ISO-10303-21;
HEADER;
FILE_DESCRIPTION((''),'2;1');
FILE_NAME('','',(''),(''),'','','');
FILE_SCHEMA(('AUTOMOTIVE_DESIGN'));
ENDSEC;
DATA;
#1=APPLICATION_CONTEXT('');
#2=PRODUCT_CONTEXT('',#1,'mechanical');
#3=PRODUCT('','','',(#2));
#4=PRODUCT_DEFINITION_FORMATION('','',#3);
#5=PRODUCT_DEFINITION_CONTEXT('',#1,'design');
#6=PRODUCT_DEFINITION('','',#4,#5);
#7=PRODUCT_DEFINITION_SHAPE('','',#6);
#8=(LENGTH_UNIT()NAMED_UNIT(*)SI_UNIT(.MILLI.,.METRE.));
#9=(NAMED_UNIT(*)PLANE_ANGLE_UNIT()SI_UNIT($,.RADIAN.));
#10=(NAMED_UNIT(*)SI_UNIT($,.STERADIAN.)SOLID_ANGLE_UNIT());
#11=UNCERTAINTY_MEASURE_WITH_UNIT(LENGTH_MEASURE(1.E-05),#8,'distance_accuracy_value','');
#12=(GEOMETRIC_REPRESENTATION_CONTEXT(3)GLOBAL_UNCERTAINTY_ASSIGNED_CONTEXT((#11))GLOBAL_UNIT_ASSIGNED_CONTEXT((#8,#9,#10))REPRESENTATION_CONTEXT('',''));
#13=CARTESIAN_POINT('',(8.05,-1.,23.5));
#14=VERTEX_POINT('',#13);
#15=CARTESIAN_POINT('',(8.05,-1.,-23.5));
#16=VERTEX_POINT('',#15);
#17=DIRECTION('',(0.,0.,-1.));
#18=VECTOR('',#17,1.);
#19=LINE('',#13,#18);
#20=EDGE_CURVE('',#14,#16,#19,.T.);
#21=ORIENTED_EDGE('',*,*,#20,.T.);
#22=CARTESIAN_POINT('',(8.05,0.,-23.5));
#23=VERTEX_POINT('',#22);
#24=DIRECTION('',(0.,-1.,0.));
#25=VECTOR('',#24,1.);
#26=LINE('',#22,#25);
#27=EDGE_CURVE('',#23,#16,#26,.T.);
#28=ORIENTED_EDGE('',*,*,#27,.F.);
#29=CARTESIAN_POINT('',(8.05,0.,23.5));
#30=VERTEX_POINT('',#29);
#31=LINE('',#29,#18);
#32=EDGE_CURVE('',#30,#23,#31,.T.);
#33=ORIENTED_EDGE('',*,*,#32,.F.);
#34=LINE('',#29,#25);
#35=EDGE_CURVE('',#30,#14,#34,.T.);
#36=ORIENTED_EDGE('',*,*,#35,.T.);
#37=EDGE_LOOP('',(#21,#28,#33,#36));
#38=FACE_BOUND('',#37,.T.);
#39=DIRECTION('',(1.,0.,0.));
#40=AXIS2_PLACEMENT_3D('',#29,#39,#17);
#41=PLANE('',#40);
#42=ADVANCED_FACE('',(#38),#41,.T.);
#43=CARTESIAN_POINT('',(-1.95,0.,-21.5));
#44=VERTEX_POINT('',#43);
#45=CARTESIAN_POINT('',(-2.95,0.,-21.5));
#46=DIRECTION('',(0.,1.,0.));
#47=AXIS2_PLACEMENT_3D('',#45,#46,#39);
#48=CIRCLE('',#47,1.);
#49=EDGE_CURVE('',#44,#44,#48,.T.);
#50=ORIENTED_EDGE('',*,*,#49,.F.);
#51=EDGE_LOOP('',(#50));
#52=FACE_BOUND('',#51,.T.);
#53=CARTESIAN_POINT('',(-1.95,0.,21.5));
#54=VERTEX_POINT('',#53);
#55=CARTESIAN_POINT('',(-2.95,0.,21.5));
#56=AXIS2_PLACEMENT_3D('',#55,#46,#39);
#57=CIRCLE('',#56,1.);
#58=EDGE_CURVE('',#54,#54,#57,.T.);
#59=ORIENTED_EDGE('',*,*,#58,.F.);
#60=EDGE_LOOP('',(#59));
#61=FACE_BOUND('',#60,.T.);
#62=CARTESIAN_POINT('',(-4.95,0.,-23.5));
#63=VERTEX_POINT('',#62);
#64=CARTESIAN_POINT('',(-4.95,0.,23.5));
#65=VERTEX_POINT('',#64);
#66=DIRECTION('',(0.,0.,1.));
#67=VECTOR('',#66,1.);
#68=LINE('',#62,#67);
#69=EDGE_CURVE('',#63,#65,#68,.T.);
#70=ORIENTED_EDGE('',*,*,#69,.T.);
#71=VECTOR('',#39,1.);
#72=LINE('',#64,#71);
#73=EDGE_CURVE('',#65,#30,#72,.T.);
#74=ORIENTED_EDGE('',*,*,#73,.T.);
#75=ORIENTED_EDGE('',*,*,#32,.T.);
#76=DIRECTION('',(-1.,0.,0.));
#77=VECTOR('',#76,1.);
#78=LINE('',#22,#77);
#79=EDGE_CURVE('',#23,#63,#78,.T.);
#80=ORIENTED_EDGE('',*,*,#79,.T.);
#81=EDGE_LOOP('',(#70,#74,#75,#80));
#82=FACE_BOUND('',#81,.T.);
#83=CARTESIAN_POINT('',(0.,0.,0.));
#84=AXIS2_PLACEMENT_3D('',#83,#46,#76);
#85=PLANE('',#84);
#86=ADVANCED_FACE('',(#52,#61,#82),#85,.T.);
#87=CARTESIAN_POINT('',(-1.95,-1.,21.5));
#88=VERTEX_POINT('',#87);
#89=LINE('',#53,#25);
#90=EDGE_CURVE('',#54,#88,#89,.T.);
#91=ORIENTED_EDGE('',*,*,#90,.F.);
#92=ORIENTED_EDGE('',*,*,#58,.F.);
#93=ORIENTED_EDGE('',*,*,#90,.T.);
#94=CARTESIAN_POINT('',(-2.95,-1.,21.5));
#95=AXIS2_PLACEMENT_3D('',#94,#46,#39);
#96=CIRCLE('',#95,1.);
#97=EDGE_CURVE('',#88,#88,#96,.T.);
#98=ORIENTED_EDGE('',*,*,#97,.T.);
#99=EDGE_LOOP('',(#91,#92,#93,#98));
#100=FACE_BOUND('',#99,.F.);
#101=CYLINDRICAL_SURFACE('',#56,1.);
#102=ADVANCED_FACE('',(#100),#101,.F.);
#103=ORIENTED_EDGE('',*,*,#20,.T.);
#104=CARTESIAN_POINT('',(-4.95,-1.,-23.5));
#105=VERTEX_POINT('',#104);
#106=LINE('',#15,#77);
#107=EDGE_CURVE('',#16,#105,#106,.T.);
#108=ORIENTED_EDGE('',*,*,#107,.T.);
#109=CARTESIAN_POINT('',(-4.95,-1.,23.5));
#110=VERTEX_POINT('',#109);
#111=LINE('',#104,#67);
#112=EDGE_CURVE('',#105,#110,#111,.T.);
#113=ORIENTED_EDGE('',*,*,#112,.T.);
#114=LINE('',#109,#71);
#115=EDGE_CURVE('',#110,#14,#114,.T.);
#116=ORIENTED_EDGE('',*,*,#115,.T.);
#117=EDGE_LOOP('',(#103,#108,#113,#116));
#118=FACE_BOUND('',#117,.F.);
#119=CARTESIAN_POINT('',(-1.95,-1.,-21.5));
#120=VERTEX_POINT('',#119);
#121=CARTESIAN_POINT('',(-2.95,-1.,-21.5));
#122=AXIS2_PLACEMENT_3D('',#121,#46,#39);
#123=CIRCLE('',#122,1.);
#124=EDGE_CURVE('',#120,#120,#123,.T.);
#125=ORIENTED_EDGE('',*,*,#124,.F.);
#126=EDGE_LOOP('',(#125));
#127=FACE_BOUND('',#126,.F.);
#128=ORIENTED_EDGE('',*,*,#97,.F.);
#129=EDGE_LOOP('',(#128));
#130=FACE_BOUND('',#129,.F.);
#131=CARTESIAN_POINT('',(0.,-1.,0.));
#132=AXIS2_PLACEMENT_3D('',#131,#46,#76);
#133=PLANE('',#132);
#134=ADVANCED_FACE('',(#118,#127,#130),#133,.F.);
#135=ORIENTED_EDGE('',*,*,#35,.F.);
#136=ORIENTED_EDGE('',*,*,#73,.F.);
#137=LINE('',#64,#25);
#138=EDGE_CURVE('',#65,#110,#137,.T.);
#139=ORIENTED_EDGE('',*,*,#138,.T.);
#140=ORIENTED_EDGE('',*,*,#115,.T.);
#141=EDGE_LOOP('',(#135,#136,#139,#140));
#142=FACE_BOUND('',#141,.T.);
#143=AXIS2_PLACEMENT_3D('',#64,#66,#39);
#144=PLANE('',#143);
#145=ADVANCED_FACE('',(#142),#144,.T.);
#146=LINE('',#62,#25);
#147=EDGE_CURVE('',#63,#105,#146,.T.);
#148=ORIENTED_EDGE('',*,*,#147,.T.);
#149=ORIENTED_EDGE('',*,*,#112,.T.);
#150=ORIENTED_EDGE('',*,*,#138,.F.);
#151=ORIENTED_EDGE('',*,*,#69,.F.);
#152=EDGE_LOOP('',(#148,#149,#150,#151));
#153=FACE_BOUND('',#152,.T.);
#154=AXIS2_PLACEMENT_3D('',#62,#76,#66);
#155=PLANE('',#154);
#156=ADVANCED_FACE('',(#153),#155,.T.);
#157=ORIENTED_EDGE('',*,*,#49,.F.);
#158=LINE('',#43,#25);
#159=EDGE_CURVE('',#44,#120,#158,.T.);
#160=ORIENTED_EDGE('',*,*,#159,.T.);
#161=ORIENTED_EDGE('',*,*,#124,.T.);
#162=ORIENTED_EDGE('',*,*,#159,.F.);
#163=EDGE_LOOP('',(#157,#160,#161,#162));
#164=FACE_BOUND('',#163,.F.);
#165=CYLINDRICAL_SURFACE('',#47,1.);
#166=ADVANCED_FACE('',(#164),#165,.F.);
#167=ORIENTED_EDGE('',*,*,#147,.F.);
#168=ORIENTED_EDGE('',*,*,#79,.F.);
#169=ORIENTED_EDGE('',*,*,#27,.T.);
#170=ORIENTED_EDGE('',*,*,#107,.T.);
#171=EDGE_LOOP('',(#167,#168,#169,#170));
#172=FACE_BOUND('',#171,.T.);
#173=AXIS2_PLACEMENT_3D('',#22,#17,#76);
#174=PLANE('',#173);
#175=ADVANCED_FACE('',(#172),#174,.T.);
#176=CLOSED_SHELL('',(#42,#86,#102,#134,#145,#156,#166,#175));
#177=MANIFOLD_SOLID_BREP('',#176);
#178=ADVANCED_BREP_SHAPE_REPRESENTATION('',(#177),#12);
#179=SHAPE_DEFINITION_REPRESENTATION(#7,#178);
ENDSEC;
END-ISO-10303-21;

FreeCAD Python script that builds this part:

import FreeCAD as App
import Part
import Sketcher

V = App.Vector


def add_polygon(sketch, points):
    """Adds a closed chain of lines whose ends are joined by coincident constraints."""
    first, n = sketch.GeometryCount, len(points)
    for a, b in zip(points, points[1:] + points[:1]):
        sketch.addGeometry(Part.LineSegment(App.Vector(*a, 0), App.Vector(*b, 0)), False)
    for i in range(n):
        sketch.addConstraint(Sketcher.Constraint("Coincident", first + i, 2, first + (i + 1) % n, 1))

doc = App.newDocument("Part")
body = doc.addObject("PartDesign::Body", "Body")

sketch1 = doc.addObject("Sketcher::SketchObject", "Sketch")
body.addObject(sketch1)
sketch1.AttachmentSupport = (doc.XZ_Plane, [""])
sketch1.MapMode = "FlatFace"
add_polygon(sketch1, [(-4.95, -23.5), (-4.95, 23.5), (8.05, 23.5), (8.05, -23.5)])
sketch1.addConstraint([
    Sketcher.Constraint("Vertical", 0),
    Sketcher.Constraint("Horizontal", 1),
    Sketcher.Constraint("Vertical", 2),
    Sketcher.Constraint("Horizontal", 3),
    Sketcher.Constraint("DistanceY", 0, 1, 0, 2, 47.0),
    Sketcher.Constraint("DistanceY", -1, 1, 0, 2, 23.5),
    Sketcher.Constraint("DistanceX", 1, 1, 1, 2, 13.0),
    Sketcher.Constraint("DistanceX", 0, 2, -1, 1, 4.95),
])
pad1 = doc.addObject("PartDesign::Pad", "Pad")
body.addObject(pad1)
pad1.Profile = sketch1
pad1.Length = 1

sketch2 = doc.addObject("Sketcher::SketchObject", "Sketch001")
body.addObject(sketch2)
sketch2.AttachmentSupport = (doc.XZ_Plane, [""])
sketch2.MapMode = "FlatFace"
sketch2.addGeometry([
    Part.Circle(V(-2.95, -21.5, 0), V(0, 0, 1), 1),
    Part.Circle(V(-2.95, 21.5, 0), V(0, 0, 1), 1),
], False)
sketch2.addConstraint([
    Sketcher.Constraint("Equal", 0, 1),
    Sketcher.Constraint("Symmetric", 0, 3, 1, 3, -1),
    Sketcher.Constraint("Diameter", 0, 2.0),
    Sketcher.Constraint("DistanceY", 0, 3, 1, 3, 43.0),
    Sketcher.Constraint("DistanceX", 0, 3, -1, 1, 2.95),
])
pocket1 = doc.addObject("PartDesign::Pocket", "Pocket")
body.addObject(pocket1)
pocket1.Profile = sketch2
pocket1.Length = 1
pocket1.Reversed = True

doc.recompute()
